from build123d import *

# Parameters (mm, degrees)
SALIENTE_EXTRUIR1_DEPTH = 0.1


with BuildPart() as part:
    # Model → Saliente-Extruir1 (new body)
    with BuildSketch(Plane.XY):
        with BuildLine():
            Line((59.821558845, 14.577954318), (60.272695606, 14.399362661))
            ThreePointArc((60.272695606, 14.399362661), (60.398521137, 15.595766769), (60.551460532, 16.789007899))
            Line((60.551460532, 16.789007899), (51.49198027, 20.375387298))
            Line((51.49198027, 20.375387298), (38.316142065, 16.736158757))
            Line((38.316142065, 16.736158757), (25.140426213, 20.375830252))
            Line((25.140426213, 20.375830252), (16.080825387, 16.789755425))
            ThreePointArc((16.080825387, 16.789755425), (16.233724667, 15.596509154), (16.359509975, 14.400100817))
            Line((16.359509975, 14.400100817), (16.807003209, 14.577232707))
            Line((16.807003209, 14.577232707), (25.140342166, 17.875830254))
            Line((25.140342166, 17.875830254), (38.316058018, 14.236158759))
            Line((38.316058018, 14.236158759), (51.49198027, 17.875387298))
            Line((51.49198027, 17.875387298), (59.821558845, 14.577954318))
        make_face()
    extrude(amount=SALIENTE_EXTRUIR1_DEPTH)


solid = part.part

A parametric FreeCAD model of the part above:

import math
import FreeCAD as App
import Part
import Sketcher

V = App.Vector
Q = App.Units.Quantity

doc = App.newDocument("Part")
params = doc.addObject("Spreadsheet::Sheet", "Params")
for row, (alias, value) in enumerate([
    ("pad1_length", "0.1 mm"),
], start=1):
    params.set(f"A{row}", alias)
    params.set(f"B{row}", "=" + value)
    params.setAlias(f"B{row}", alias)

body = doc.addObject("PartDesign::Body", "Body")

# Sketch on XY plane
sketch1 = doc.addObject("Sketcher::SketchObject", "Sketch")
body.addObject(sketch1)
sketch1.AttachmentSupport = (doc.XY_Plane, [""])
sketch1.MapMode = "FlatFace"
sketch1.addGeometry([
    Part.LineSegment(V(59.821559, 14.577954, 0), V(60.272696, 14.399363, 0)),  # 0
    Part.ArcOfCircle(Part.Circle(V(113.05737, 9.45283, 0), V(0, 0, 1), 53.015942), math.radians(172.046069), math.radians(174.64636)),  # 1
    Part.LineSegment(V(60.551461, 16.789008, 0), V(51.49198, 20.375387, 0)),  # 2
    Part.LineSegment(V(51.49198, 20.375387, 0), V(38.316142, 16.736159, 0)),  # 3
    Part.LineSegment(V(38.316142, 16.736159, 0), V(25.140426, 20.37583, 0)),  # 4
    Part.LineSegment(V(25.140426, 20.37583, 0), V(16.080825, 16.789755, 0)),  # 5
    Part.ArcOfCircle(Part.Circle(V(-36.425328, 9.455343, 0), V(0, 0, 1), 53.015939), math.radians(5.351714), math.radians(7.952005)),  # 6
    Part.LineSegment(V(16.35951, 14.400101, 0), V(16.807003, 14.577233, 0)),  # 7
    Part.LineSegment(V(16.807003, 14.577233, 0), V(25.140342, 17.87583, 0)),  # 8
    Part.LineSegment(V(25.140342, 17.87583, 0), V(38.316058, 14.236159, 0)),  # 9
    Part.LineSegment(V(38.316058, 14.236159, 0), V(51.49198, 17.875387, 0)),  # 10
    Part.LineSegment(V(51.49198, 17.875387, 0), V(59.821559, 14.577954, 0)),  # 11
], False)
sketch1.addConstraint([
    Sketcher.Constraint("Coincident", 0, 2, 1, 2),
    Sketcher.Constraint("Coincident", 1, 1, 2, 1),
    Sketcher.Constraint("Coincident", 2, 2, 3, 1),
    Sketcher.Constraint("Coincident", 3, 2, 4, 1),
    Sketcher.Constraint("Coincident", 4, 2, 5, 1),
    Sketcher.Constraint("Coincident", 5, 2, 6, 2),
    Sketcher.Constraint("Coincident", 6, 1, 7, 1),
    Sketcher.Constraint("Coincident", 7, 2, 8, 1),
    Sketcher.Constraint("Coincident", 8, 2, 9, 1),
    Sketcher.Constraint("Coincident", 9, 2, 10, 1),
    Sketcher.Constraint("Coincident", 10, 2, 11, 1),
    Sketcher.Constraint("Coincident", 11, 2, 0, 1),
    Sketcher.Constraint("DistanceY", 8, 2, 4, 2, Q("2.5 mm")),
    Sketcher.Constraint("DistanceY", 9, 2, 3, 2, Q("2.5 mm")),
    Sketcher.Constraint("DistanceY", 10, 2, 2, 2, Q("2.5 mm")),
    Sketcher.Constraint("Radius", 1, Q("53.015942 mm")),
    Sketcher.Constraint("Radius", 6, Q("53.015939 mm")),
    Sketcher.Constraint("Distance", 0, Q("0.4852 mm")),
    Sketcher.Constraint("DistanceY", -1, 1, 6, 1, Q("14.400101 mm")),
    Sketcher.Constraint("DistanceX", 6, 3, 1, 3, Q("149.482698 mm")),
    Sketcher.Constraint("DistanceX", 5, 2, 4, 2, Q("9.059601 mm")),
    Sketcher.Constraint("DistanceX", 8, 2, 3, 2, Q("13.1758 mm")),
    Sketcher.Constraint("DistanceX", 11, 2, 1, 1, Q("0.729902 mm")),
    Sketcher.Constraint("DistanceX", 9, 2, 11, 2, Q("21.505501 mm")),
    Sketcher.Constraint("Distance", 10, Q("13.669269 mm")),
    Sketcher.Constraint("DistanceX", -1, 1, 1, 3, Q("113.05737 mm")),
    Sketcher.Constraint("DistanceY", -1, 1, 1, 3, Q("9.45283 mm")),
    Sketcher.Constraint("DistanceX", -1, 1, 1, 1, Q("60.551461 mm")),
    Sketcher.Constraint("DistanceX", -1, 1, 2, 2, Q("51.49198 mm")),
    Sketcher.Constraint("DistanceY", -1, 1, 3, 2, Q("16.736159 mm")),
    Sketcher.Constraint("DistanceY", -1, 1, 4, 2, Q("20.37583 mm")),
    Sketcher.Constraint("DistanceX", -1, 1, 6, 1, Q("16.35951 mm")),
    Sketcher.Constraint("DistanceX", -1, 1, 10, 2, Q("51.49198 mm")),
    Sketcher.Constraint("DistanceY", 6, 3, 0, 2, Q("4.94402 mm")),
    Sketcher.Constraint("DistanceX", 3, 2, 2, 2, Q("13.175838 mm")),
    Sketcher.Constraint("DistanceX", 4, 2, 0, 2, Q("35.132269 mm")),
    Sketcher.Constraint("DistanceY", 6, 1, 7, 2, Q("0.177132 mm")),
    Sketcher.Constraint("DistanceX", 7, 2, 3, 2, Q("21.509139 mm")),
])
pad1 = doc.addObject("PartDesign::Pad", "Pad")
body.addObject(pad1)
pad1.Profile = sketch1
pad1.setExpression("Length", "Params.pad1_length")

doc.recompute()
